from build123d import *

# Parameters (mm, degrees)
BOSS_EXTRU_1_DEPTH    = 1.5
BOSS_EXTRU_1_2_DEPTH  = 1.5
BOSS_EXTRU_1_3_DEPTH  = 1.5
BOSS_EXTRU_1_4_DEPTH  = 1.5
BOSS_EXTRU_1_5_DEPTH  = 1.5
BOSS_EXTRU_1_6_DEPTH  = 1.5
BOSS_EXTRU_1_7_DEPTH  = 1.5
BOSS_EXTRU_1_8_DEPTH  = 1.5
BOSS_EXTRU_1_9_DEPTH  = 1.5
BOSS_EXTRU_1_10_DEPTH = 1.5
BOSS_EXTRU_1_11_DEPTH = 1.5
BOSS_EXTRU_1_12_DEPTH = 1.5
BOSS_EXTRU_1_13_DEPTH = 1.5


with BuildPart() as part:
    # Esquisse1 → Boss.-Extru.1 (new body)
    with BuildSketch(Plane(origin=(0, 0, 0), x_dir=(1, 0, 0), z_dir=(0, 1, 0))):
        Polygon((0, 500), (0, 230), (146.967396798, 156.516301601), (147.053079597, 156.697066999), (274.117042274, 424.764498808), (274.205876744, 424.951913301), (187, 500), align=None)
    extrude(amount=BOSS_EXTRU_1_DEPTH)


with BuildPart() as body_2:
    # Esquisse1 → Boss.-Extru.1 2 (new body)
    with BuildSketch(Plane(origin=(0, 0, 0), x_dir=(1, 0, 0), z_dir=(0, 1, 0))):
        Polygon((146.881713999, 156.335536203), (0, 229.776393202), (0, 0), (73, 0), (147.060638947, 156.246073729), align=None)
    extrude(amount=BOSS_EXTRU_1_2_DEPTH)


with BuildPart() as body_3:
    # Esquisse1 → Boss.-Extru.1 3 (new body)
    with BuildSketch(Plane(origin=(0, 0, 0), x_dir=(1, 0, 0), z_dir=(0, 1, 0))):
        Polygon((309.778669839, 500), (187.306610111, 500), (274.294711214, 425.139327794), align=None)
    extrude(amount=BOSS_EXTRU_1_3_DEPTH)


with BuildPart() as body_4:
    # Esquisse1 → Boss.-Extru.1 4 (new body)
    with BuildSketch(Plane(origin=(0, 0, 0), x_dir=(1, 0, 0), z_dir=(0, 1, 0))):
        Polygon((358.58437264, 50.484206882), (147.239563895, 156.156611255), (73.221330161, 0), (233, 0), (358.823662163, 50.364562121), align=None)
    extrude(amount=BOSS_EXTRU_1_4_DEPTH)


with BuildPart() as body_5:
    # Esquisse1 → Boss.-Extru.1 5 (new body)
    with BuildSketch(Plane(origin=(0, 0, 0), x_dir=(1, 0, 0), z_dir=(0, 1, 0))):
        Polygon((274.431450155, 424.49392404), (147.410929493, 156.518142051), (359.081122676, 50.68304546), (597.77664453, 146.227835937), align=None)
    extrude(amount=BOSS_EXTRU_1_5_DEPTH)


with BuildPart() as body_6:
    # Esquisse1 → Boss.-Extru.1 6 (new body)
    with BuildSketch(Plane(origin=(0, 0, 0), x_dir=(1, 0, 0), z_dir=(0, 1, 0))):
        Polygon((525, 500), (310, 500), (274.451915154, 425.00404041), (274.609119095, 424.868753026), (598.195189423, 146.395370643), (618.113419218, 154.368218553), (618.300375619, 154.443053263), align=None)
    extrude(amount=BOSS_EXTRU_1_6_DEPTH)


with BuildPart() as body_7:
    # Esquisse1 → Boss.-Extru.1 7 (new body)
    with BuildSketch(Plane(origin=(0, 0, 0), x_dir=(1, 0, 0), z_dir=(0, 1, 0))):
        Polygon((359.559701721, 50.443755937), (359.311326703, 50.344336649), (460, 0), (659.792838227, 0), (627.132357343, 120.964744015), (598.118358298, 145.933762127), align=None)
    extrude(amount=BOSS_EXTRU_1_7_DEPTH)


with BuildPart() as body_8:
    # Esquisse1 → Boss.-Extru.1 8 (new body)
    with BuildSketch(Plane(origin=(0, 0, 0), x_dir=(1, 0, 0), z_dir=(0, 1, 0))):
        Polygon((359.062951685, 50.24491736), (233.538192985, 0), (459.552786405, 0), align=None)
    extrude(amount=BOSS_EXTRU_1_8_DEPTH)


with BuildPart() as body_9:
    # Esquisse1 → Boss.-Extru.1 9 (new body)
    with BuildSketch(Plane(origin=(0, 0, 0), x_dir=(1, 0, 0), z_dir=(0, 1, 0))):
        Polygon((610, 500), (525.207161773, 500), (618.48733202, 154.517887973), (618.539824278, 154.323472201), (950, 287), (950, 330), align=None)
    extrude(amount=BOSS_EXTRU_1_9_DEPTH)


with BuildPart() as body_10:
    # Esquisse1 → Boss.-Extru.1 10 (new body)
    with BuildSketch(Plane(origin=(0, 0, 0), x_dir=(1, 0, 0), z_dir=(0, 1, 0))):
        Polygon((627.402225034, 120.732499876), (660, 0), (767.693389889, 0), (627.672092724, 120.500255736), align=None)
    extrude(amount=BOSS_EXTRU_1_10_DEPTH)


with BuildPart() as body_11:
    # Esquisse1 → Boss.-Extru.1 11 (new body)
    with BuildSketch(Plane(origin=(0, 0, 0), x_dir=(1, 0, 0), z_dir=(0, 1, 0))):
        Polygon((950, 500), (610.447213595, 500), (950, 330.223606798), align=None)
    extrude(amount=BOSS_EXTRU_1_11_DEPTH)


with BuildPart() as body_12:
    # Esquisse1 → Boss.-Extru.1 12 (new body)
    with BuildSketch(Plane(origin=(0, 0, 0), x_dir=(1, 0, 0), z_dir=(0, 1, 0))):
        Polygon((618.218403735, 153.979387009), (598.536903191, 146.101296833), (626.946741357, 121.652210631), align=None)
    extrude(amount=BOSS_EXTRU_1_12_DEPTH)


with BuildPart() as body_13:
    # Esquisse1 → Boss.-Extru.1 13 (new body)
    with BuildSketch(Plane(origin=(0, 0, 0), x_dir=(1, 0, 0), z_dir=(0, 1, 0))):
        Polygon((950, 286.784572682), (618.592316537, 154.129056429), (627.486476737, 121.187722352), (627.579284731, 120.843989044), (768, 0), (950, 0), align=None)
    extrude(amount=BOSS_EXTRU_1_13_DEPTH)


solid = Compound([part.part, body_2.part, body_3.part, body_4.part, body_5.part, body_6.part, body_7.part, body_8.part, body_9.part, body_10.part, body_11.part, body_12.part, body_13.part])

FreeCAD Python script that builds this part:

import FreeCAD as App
import Part
import Sketcher
Q = App.Units.Quantity


def add_polygon(sketch, points):
    """Adds a closed chain of lines whose ends are joined by coincident constraints."""
    first, n = sketch.GeometryCount, len(points)
    for a, b in zip(points, points[1:] + points[:1]):
        sketch.addGeometry(Part.LineSegment(App.Vector(*a, 0), App.Vector(*b, 0)), False)
    for i in range(n):
        sketch.addConstraint(Sketcher.Constraint("Coincident", first + i, 2, first + (i + 1) % n, 1))

doc = App.newDocument("Part")
body = doc.addObject("PartDesign::Body", "Body")

# Sketch on XZ plane
sketch1 = body.newObject("Sketcher::SketchObject", "Sketch")
sketch1.AttachmentSupport = (doc.getObject("XZ_Plane"), [""])
sketch1.MapMode = "FlatFace"
add_polygon(sketch1, [(0, -500), (0, -230), (146.967397, -156.516302), (147.05308, -156.697067), (274.117042, -424.764499), (274.205877, -424.951913), (187, -500)])  # lines 0-6
sketch1.addConstraint([
    Sketcher.Constraint("Vertical", 0),
    Sketcher.Constraint("Horizontal", 6),
    Sketcher.Constraint("PointOnObject", 0, 2, -2),
    Sketcher.Constraint("Parallel", 2, 3),
    Sketcher.Constraint("Parallel", 3, 4),
    Sketcher.Constraint("DistanceX", 6, 2, 6, 1, Q("187 mm")),
    Sketcher.Constraint("DistanceY", 0, 1, 0, 2, Q("270 mm")),
    Sketcher.Constraint("DistanceY", 0, 2, -1, 1, Q("230 mm")),
    Sketcher.Constraint("DistanceY", 1, 2, -1, 1, Q("156.516302 mm")),
    Sketcher.Constraint("DistanceY", 3, 2, -1, 1, Q("424.764499 mm")),
    Sketcher.Constraint("Distance", 3, Q("296.657039 mm")),
    Sketcher.Constraint("Distance", 5, Q("115.052511 mm")),
    Sketcher.Constraint("DistanceX", -1, 1, 2, 2, Q("147.05308 mm")),
    Sketcher.Constraint("DistanceY", 3, 2, 2, 2, Q("268.067432 mm")),
])
pad1 = body.newObject("PartDesign::Pad", "Pad")
pad1.Profile = sketch1
pad1.Length = 1.5
pad1.Reversed = True
body2 = doc.addObject("PartDesign::Body", "Body001")

# Sketch on XZ plane
sketch2 = body2.newObject("Sketcher::SketchObject", "Sketch001")
sketch2.AttachmentSupport = (doc.getObject("XZ_Plane001"), [""])
sketch2.MapMode = "FlatFace"
add_polygon(sketch2, [(146.881714, -156.335536), (0, -229.776393), (0, 0), (73, 0), (147.060639, -156.246074)])  # lines 0-4
sketch2.addConstraint([
    Sketcher.Constraint("Vertical", 1),
    Sketcher.Constraint("Horizontal", 2),
    Sketcher.Constraint("Coincident", 1, 2, -1, 1),
    Sketcher.Constraint("Parallel", 0, 4),
    Sketcher.Constraint("DistanceX", 2, 1, 2, 2, Q("73 mm")),
    Sketcher.Constraint("Distance", 0, Q("164.218749 mm")),
    Sketcher.Constraint("DistanceY", 1, 1, 1, 2, Q("229.776393 mm")),
    Sketcher.Constraint("DistanceX", -1, 1, 3, 2, Q("147.060639 mm")),
    Sketcher.Constraint("DistanceY", 0, 2, 3, 2, Q("73.530319 mm")),
])
pad2 = body2.newObject("PartDesign::Pad", "Pad001")
pad2.Profile = sketch2
pad2.Length = 1.5
pad2.Reversed = True
body3 = doc.addObject("PartDesign::Body", "Body002")

# Sketch on XZ plane
sketch3 = body3.newObject("Sketcher::SketchObject", "Sketch002")
sketch3.AttachmentSupport = (doc.getObject("XZ_Plane002"), [""])
sketch3.MapMode = "FlatFace"
add_polygon(sketch3, [(309.77867, -500), (187.30661, -500), (274.294711, -425.139328)])  # lines 0-2
sketch3.addConstraint([
    Sketcher.Constraint("Horizontal", 0),
    Sketcher.Constraint("DistanceY", 0, 2, -1, 1, Q("500 mm")),
    Sketcher.Constraint("DistanceX", 0, 2, 0, 1, Q("122.47206 mm")),
    Sketcher.Constraint("DistanceX", 0, 2, 1, 2, Q("86.988101 mm")),
    Sketcher.Constraint("DistanceX", -1, 1, 0, 2, Q("187.30661 mm")),
    Sketcher.Constraint("Distance", 1, Q("114.765195 mm")),
])
pad3 = body3.newObject("PartDesign::Pad", "Pad002")
pad3.Profile = sketch3
pad3.Length = 1.5
pad3.Reversed = True
body4 = doc.addObject("PartDesign::Body", "Body003")

# Sketch on XZ plane
sketch4 = body4.newObject("Sketcher::SketchObject", "Sketch003")
sketch4.AttachmentSupport = (doc.getObject("XZ_Plane003"), [""])
sketch4.MapMode = "FlatFace"
add_polygon(sketch4, [(358.584373, -50.484207), (147.239564, -156.156611), (73.22133, 0), (233, 0), (358.823662, -50.364562)])  # lines 0-4
sketch4.addConstraint([
    Sketcher.Constraint("Horizontal", 2),
    Sketcher.Constraint("PointOnObject", 1, 2, -1),
    Sketcher.Constraint("Parallel", 0, 4),
    Sketcher.Constraint("DistanceX", -1, 1, 2, 2, Q("233 mm")),
    Sketcher.Constraint("DistanceX", 2, 1, 2, 2, Q("159.77867 mm")),
    Sketcher.Constraint("DistanceX", 0, 2, 3, 2, Q("211.584098 mm")),
    Sketcher.Constraint("Distance", 0, Q("236.29068 mm")),
    Sketcher.Constraint("Distance", 1, Q("172.810839 mm")),
    Sketcher.Constraint("Distance", 3, Q("135.52927 mm")),
    Sketcher.Constraint("DistanceY", 0, 2, -1, 1, Q("156.156611 mm")),
])
pad4 = body4.newObject("PartDesign::Pad", "Pad003")
pad4.Profile = sketch4
pad4.Length = 1.5
pad4.Reversed = True
body5 = doc.addObject("PartDesign::Body", "Body004")

# Sketch on XZ plane
sketch5 = body5.newObject("Sketcher::SketchObject", "Sketch004")
sketch5.AttachmentSupport = (doc.getObject("XZ_Plane004"), [""])
sketch5.MapMode = "FlatFace"
add_polygon(sketch5, [(274.43145, -424.493924), (147.410929, -156.518142), (359.081123, -50.683045), (597.776645, -146.227836)])  # lines 0-3
sketch5.addConstraint([
    Sketcher.Constraint("Distance", 1, Q("236.65447 mm")),
    Sketcher.Constraint("Distance", 2, Q("257.10768 mm")),
    Sketcher.Constraint("Distance", 3, Q("426.59598 mm")),
    Sketcher.Constraint("DistanceX", -1, 1, 0, 2, Q("147.410929 mm")),
    Sketcher.Constraint("DistanceX", -1, 1, 3, 2, Q("274.43145 mm")),
    Sketcher.Constraint("DistanceX", 1, 2, 2, 2, Q("238.695522 mm")),
    Sketcher.Constraint("DistanceY", 3, 2, 0, 2, Q("267.975782 mm")),
    Sketcher.Constraint("DistanceY", 0, 2, -1, 1, Q("156.518142 mm")),
])
pad5 = body5.newObject("PartDesign::Pad", "Pad004")
pad5.Profile = sketch5
pad5.Length = 1.5
pad5.Reversed = True
body6 = doc.addObject("PartDesign::Body", "Body005")

# Sketch on XZ plane
sketch6 = body6.newObject("Sketcher::SketchObject", "Sketch005")
sketch6.AttachmentSupport = (doc.getObject("XZ_Plane005"), [""])
sketch6.MapMode = "FlatFace"
add_polygon(sketch6, [(525, -500), (310, -500), (274.451915, -425.00404), (274.609119, -424.868753), (598.195189, -146.395371), (618.113419, -154.368219), (618.300376, -154.443053)])  # lines 0-6
sketch6.addConstraint([
    Sketcher.Constraint("Horizontal", 0),
    Sketcher.Constraint("Parallel", 2, 3),
    Sketcher.Constraint("Parallel", 4, 5),
    Sketcher.Constraint("DistanceX", 0, 2, 0, 1, Q("215 mm")),
    Sketcher.Constraint("DistanceX", -1, 1, 0, 2, Q("310 mm")),
    Sketcher.Constraint("DistanceY", 0, 2, -1, 1, Q("500 mm")),
    Sketcher.Constraint("DistanceX", 2, 2, 4, 2, Q("343.5043 mm")),
    Sketcher.Constraint("DistanceY", 2, 2, 5, 2, Q("270.4257 mm")),
    Sketcher.Constraint("Distance", 1, Q("82.994339 mm")),
    Sketcher.Constraint("DistanceY", 1, 2, -1, 1, Q("425.00404 mm")),
    Sketcher.Constraint("DistanceX", -1, 1, 2, 2, Q("274.609119 mm")),
    Sketcher.Constraint("DistanceX", -1, 1, 3, 2, Q("598.195189 mm")),
    Sketcher.Constraint("DistanceY", 3, 2, -1, 1, Q("146.395371 mm")),
    Sketcher.Constraint("DistanceY", 4, 2, -1, 1, Q("154.368219 mm")),
])
pad6 = body6.newObject("PartDesign::Pad", "Pad005")
pad6.Profile = sketch6
pad6.Length = 1.5
pad6.Reversed = True
body7 = doc.addObject("PartDesign::Body", "Body006")

# Sketch on XZ plane
sketch7 = body7.newObject("Sketcher::SketchObject", "Sketch006")
sketch7.AttachmentSupport = (doc.getObject("XZ_Plane006"), [""])
sketch7.MapMode = "FlatFace"
add_polygon(sketch7, [(359.559702, -50.443756), (359.311327, -50.344337), (460, 0), (659.792838, 0), (627.132357, -120.964744), (598.118358, -145.933762)])  # lines 0-5
sketch7.addConstraint([
    Sketcher.Constraint("Horizontal", 2),
    Sketcher.Constraint("PointOnObject", 1, 2, -1),
    Sketcher.Constraint("Parallel", 0, 5),
    Sketcher.Constraint("DistanceX", -1, 1, 1, 2, Q("460 mm")),
    Sketcher.Constraint("DistanceX", 4, 2, 3, 2, Q("29.013999 mm")),
    Sketcher.Constraint("DistanceX", 2, 1, 2, 2, Q("199.792838 mm")),
    Sketcher.Constraint("DistanceX", -1, 1, 5, 2, Q("359.559702 mm")),
    Sketcher.Constraint("Distance", 1, Q("112.573359 mm")),
    Sketcher.Constraint("DistanceX", -1, 1, 4, 2, Q("598.118358 mm")),
    Sketcher.Constraint("DistanceX", 0, 2, 2, 2, Q("300.481512 mm")),
    Sketcher.Constraint("DistanceY", 4, 2, 3, 2, Q("24.969018 mm")),
    Sketcher.Constraint("DistanceY", 3, 2, 5, 2, Q("70.520988 mm")),
])
pad7 = body7.newObject("PartDesign::Pad", "Pad006")
pad7.Profile = sketch7
pad7.Length = 1.5
pad7.Reversed = True
body8 = doc.addObject("PartDesign::Body", "Body007")

# Sketch on XZ plane
sketch8 = body8.newObject("Sketcher::SketchObject", "Sketch007")
sketch8.AttachmentSupport = (doc.getObject("XZ_Plane007"), [""])
sketch8.MapMode = "FlatFace"
add_polygon(sketch8, [(359.062952, -50.244917), (233.538193, 0), (459.552786, 0)])  # lines 0-2
sketch8.addConstraint([
    Sketcher.Constraint("Horizontal", 1),
    Sketcher.Constraint("PointOnObject", 0, 2, -1),
    Sketcher.Constraint("Distance", 0, Q("135.20731 mm")),
    Sketcher.Constraint("Distance", 2, Q("112.351051 mm")),
    Sketcher.Constraint("DistanceX", 1, 1, 1, 2, Q("226.014593 mm")),
    Sketcher.Constraint("DistanceX", -1, 1, 2, 2, Q("359.062952 mm")),
])
pad8 = body8.newObject("PartDesign::Pad", "Pad007")
pad8.Profile = sketch8
pad8.Length = 1.5
pad8.Reversed = True
body9 = doc.addObject("PartDesign::Body", "Body008")

# Sketch on XZ plane
sketch9 = body9.newObject("Sketcher::SketchObject", "Sketch008")
sketch9.AttachmentSupport = (doc.getObject("XZ_Plane008"), [""])
sketch9.MapMode = "FlatFace"
add_polygon(sketch9, [(610, -500), (525.207162, -500), (618.487332, -154.517888), (618.539824, -154.323472), (950, -287), (950, -330)])  # lines 0-5
sketch9.addConstraint([
    Sketcher.Constraint("Horizontal", 0),
    Sketcher.Constraint("Vertical", 4),
    Sketcher.Constraint("Parallel", 1, 2),
    Sketcher.Constraint("DistanceY", 4, 2, 4, 1, Q("43 mm")),
    Sketcher.Constraint("DistanceY", 0, 2, -1, 1, Q("500 mm")),
    Sketcher.Constraint("DistanceX", -1, 1, 3, 2, Q("950 mm")),
    Sketcher.Constraint("DistanceY", 3, 2, -1, 1, Q("287 mm")),
    Sketcher.Constraint("DistanceX", -1, 1, 5, 2, Q("610 mm")),
    Sketcher.Constraint("DistanceX", 0, 2, 0, 1, Q("84.792838 mm")),
    Sketcher.Constraint("DistanceX", 0, 2, 1, 2, Q("93.28017 mm")),
    Sketcher.Constraint("Distance", 1, Q("357.853434 mm")),
    Sketcher.Constraint("Distance", 2, Q("0.201378 mm")),
])
pad9 = body9.newObject("PartDesign::Pad", "Pad008")
pad9.Profile = sketch9
pad9.Length = 1.5
pad9.Reversed = True
body10 = doc.addObject("PartDesign::Body", "Body009")

# Sketch on XZ plane
sketch10 = body10.newObject("Sketcher::SketchObject", "Sketch009")
sketch10.AttachmentSupport = (doc.getObject("XZ_Plane009"), [""])
sketch10.MapMode = "FlatFace"
add_polygon(sketch10, [(627.402225, -120.7325), (660, 0), (767.69339, 0), (627.672093, -120.500256)])  # lines 0-3
sketch10.addConstraint([
    Sketcher.Constraint("Horizontal", 1),
    Sketcher.Constraint("PointOnObject", 0, 2, -1),
    Sketcher.Constraint("Parallel", 2, 3),
    Sketcher.Constraint("DistanceX", -1, 1, 0, 2, Q("660 mm")),
    Sketcher.Constraint("DistanceX", 1, 1, 1, 2, Q("107.69339 mm")),
    Sketcher.Constraint("DistanceY", 3, 2, -1, 1, Q("120.7325 mm")),
    Sketcher.Constraint("Distance", 0, Q("125.055793 mm")),
    Sketcher.Constraint("Distance", 2, Q("184.732984 mm")),
])
pad10 = body10.newObject("PartDesign::Pad", "Pad009")
pad10.Profile = sketch10
pad10.Length = 1.5
pad10.Reversed = True
body11 = doc.addObject("PartDesign::Body", "Body010")

# Sketch on XZ plane
sketch11 = body11.newObject("Sketcher::SketchObject", "Sketch010")
sketch11.AttachmentSupport = (doc.getObject("XZ_Plane010"), [""])
sketch11.MapMode = "FlatFace"
add_polygon(sketch11, [(950, -500), (610.447214, -500), (950, -330.223607)])  # lines 0-2
sketch11.addConstraint([
    Sketcher.Constraint("Horizontal", 0),
    Sketcher.Constraint("Vertical", 2),
    Sketcher.Constraint("DistanceY", 0, 2, -1, 1, Q("500 mm")),
    Sketcher.Constraint("DistanceX", -1, 1, 1, 2, Q("950 mm")),
    Sketcher.Constraint("DistanceX", 0, 2, 0, 1, Q("339.552786 mm")),
    Sketcher.Constraint("DistanceY", 2, 2, 2, 1, Q("169.776393 mm")),
])
pad11 = body11.newObject("PartDesign::Pad", "Pad010")
pad11.Profile = sketch11
pad11.Length = 1.5
pad11.Reversed = True
body12 = doc.addObject("PartDesign::Body", "Body011")

# Sketch on XZ plane
sketch12 = body12.newObject("Sketcher::SketchObject", "Sketch011")
sketch12.AttachmentSupport = (doc.getObject("XZ_Plane011"), [""])
sketch12.MapMode = "FlatFace"
add_polygon(sketch12, [(618.218404, -153.979387), (598.536903, -146.101297), (626.946741, -121.652211)])  # lines 0-2
sketch12.addConstraint([
    Sketcher.Constraint("DistanceX", 0, 2, 2, 2, Q("19.681501 mm")),
    Sketcher.Constraint("DistanceX", -1, 1, 1, 2, Q("626.946741 mm")),
    Sketcher.Constraint("DistanceY", 1, 2, -1, 1, Q("121.652211 mm")),
    Sketcher.Constraint("DistanceX", 0, 2, 1, 2, Q("28.409838 mm")),
    Sketcher.Constraint("DistanceY", 2, 2, 0, 2, Q("7.87809 mm")),
    Sketcher.Constraint("Distance", 1, Q("37.481685 mm")),
])
pad12 = body12.newObject("PartDesign::Pad", "Pad011")
pad12.Profile = sketch12
pad12.Length = 1.5
pad12.Reversed = True
body13 = doc.addObject("PartDesign::Body", "Body012")

# Sketch on XZ plane
sketch13 = body13.newObject("Sketcher::SketchObject", "Sketch012")
sketch13.AttachmentSupport = (doc.getObject("XZ_Plane012"), [""])
sketch13.MapMode = "FlatFace"
add_polygon(sketch13, [(950, -286.784573), (618.592317, -154.129056), (627.486477, -121.187722), (627.579285, -120.843989), (768, 0), (950, 0)])  # lines 0-5
sketch13.addConstraint([
    Sketcher.Constraint("Horizontal", 4),
    Sketcher.Constraint("Vertical", 5),
    Sketcher.Constraint("PointOnObject", 3, 2, -1),
    Sketcher.Constraint("Parallel", 1, 2),
    Sketcher.Constraint("DistanceX", 4, 1, 4, 2, Q("182 mm")),
    Sketcher.Constraint("DistanceX", -1, 1, 3, 2, Q("768 mm")),
    Sketcher.Constraint("Distance", 0, Q("356.971341 mm")),
    Sketcher.Constraint("DistanceY", 5, 2, 5, 1, Q("286.784573 mm")),
    Sketcher.Constraint("DistanceY", 2, 2, -1, 1, Q("120.843989 mm")),
    Sketcher.Constraint("DistanceX", 0, 2, 1, 2, Q("8.89416 mm")),
    Sketcher.Constraint("DistanceX", 0, 2, 2, 2, Q("8.986968 mm")),
    Sketcher.Constraint("DistanceY", 5, 2, 1, 2, Q("165.59685 mm")),
])
pad13 = body13.newObject("PartDesign::Pad", "Pad012")
pad13.Profile = sketch13
pad13.Length = 1.5
pad13.Reversed = True

doc.recompute()
